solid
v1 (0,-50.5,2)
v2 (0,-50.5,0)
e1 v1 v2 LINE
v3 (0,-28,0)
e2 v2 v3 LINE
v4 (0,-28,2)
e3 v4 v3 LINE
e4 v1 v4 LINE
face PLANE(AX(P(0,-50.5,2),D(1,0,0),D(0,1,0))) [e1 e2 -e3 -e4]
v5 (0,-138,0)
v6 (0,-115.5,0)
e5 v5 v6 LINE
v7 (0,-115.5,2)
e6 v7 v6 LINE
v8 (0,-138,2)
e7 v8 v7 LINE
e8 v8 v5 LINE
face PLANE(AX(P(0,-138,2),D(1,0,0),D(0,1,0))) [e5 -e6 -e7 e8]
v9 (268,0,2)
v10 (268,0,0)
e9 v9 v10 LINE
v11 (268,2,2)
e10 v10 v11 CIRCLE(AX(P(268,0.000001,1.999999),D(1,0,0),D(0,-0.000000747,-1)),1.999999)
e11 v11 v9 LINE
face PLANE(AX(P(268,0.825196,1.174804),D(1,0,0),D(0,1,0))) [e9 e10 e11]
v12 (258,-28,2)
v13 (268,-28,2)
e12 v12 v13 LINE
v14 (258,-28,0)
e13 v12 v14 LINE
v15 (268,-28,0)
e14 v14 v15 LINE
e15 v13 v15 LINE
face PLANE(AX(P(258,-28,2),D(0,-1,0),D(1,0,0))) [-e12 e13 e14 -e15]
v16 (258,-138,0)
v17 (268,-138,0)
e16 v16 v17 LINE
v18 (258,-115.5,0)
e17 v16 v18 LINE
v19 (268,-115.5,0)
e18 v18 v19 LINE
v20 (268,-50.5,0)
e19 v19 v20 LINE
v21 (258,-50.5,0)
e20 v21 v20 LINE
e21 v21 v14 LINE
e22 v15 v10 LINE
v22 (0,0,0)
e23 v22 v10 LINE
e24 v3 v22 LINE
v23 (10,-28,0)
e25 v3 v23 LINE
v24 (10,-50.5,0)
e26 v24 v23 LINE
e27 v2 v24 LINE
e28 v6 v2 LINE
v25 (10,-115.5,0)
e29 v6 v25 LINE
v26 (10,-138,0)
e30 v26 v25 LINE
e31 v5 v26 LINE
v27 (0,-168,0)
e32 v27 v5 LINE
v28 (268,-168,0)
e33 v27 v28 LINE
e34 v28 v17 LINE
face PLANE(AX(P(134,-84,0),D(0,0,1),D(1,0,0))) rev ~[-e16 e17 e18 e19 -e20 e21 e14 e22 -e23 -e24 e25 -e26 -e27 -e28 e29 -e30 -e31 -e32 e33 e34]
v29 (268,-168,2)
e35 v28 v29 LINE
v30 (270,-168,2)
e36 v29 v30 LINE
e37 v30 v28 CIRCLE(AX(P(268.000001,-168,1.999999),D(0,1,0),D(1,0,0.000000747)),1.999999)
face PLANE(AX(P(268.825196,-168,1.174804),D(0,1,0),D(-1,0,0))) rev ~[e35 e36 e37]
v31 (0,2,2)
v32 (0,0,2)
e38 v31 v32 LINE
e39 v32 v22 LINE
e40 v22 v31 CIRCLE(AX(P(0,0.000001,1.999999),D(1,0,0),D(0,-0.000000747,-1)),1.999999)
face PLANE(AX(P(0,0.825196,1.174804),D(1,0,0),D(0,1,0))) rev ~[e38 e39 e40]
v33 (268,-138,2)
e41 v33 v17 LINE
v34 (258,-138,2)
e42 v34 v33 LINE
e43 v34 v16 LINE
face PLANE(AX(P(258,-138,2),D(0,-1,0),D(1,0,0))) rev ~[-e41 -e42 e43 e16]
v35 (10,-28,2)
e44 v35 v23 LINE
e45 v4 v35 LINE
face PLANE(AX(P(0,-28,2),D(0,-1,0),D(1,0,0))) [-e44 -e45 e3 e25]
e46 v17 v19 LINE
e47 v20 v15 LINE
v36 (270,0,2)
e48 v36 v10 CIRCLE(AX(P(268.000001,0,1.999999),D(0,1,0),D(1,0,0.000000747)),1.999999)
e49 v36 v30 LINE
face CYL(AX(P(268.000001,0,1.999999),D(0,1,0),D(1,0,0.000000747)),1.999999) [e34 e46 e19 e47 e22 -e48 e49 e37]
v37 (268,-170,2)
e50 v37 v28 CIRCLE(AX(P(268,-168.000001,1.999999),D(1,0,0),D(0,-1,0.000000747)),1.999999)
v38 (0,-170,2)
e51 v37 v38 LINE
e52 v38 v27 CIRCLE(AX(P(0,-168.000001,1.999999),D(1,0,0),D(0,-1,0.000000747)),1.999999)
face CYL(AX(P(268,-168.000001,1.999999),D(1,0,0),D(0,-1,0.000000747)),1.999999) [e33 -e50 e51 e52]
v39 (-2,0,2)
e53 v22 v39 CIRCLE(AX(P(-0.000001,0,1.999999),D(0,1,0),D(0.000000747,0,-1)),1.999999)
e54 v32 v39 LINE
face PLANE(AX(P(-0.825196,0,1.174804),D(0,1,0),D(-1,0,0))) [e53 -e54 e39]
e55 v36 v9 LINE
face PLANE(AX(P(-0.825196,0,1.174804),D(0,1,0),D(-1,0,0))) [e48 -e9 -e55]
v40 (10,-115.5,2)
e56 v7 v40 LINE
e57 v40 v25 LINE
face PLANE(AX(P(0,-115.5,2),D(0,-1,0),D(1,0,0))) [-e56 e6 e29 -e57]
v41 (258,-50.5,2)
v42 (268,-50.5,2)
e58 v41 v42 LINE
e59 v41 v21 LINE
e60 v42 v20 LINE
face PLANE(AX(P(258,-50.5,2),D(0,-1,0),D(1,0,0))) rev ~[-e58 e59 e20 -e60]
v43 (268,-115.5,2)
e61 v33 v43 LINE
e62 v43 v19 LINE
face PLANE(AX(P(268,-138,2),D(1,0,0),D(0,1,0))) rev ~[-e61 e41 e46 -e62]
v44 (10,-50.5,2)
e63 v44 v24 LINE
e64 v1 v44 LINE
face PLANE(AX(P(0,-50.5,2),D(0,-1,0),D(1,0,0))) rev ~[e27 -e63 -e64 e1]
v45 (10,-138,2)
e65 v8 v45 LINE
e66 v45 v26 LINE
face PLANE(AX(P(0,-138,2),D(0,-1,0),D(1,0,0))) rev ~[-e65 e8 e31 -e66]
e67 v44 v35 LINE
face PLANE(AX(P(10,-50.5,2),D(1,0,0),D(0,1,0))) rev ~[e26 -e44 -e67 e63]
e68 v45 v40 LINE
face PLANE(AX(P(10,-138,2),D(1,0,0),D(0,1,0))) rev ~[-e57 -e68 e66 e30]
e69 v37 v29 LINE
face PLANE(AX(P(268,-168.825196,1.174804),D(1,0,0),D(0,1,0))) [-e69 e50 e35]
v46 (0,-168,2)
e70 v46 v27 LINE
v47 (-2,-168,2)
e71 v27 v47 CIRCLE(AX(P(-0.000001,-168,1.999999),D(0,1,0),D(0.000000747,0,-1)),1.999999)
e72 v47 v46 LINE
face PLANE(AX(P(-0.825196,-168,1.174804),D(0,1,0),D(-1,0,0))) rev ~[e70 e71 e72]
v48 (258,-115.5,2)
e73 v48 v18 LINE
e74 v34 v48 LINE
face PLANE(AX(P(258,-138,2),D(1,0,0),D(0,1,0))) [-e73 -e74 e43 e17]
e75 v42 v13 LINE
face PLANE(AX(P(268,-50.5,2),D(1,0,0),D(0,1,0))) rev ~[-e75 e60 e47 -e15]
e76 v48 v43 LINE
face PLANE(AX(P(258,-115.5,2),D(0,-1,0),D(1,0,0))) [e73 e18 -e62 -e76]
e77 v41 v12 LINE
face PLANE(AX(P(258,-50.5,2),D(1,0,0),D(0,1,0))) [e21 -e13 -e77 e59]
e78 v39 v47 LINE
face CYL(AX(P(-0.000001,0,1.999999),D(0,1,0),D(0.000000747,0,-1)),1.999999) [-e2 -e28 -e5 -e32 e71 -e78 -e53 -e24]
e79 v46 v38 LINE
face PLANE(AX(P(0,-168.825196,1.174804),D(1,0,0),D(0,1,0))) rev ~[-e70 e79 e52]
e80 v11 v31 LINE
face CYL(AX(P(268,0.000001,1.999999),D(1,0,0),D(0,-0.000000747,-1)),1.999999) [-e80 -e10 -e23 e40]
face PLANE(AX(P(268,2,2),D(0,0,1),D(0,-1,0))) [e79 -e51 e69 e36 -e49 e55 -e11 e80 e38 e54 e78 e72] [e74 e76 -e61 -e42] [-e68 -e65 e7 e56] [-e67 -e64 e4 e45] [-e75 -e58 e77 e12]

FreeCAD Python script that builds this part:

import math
import FreeCAD as App
import Part
import Sketcher
from FreeCAD import Vector


def add_polygon(sketch, points):
    """Adds a closed chain of lines whose ends are joined by coincident constraints."""
    first, n = sketch.GeometryCount, len(points)
    for a, b in zip(points, points[1:] + points[:1]):
        sketch.addGeometry(Part.LineSegment(App.Vector(*a, 0), App.Vector(*b, 0)), False)
    for i in range(n):
        sketch.addConstraint(Sketcher.Constraint("Coincident", first + i, 2, first + (i + 1) % n, 1))

doc = App.newDocument("Part")
body = doc.addObject("PartDesign::Body", "Body")

# Sketch on XY plane
sketch1 = body.newObject("Sketcher::SketchObject", "Sketch")
sketch1.AttachmentSupport = (doc.getObject("XY_Plane"), [""])
sketch1.MapMode = "FlatFace"
add_polygon(sketch1, [(0, 0), (0, -168), (268, -168), (268, 0)])  # lines 0-3
sketch1.addConstraint([
    Sketcher.Constraint("Vertical", 0),
    Sketcher.Constraint("Horizontal", 1),
    Sketcher.Constraint("Vertical", 2),
    Sketcher.Constraint("Horizontal", 3),
    Sketcher.Constraint("Coincident", 3, 2, -1, 1),
    Sketcher.Constraint("DistanceX", 1, 1, 1, 2, 268.0),
    Sketcher.Constraint("DistanceY", 0, 2, 0, 1, 168.0),
])
pad1 = body.newObject("PartDesign::Pad", "Pad")
pad1.Profile = sketch1
pad1.Length = 2

# Sketch on YZ plane
sketch2 = body.newObject("Sketcher::SketchObject", "Sketch001")
sketch2.AttachmentSupport = (doc.getObject("YZ_Plane"), [""])
sketch2.MapMode = "FlatFace"
sketch2.AttachmentOffset = App.Placement(Vector(0, 0, 268), App.Rotation())
sketch2.addGeometry([
    Part.LineSegment(Vector(-168, 2, 0), Vector(-170, 2, 0)),
    Part.ArcOfCircle(Part.Circle(Vector(-168, 2, 0), Vector(0, 0, 1), 2), math.radians(180), math.radians(270)),
    Part.LineSegment(Vector(-168, 0, 0), Vector(-168, 2, 0)),
], False)
sketch2.addConstraint([
    Sketcher.Constraint("Coincident", 0, 2, 1, 1),
    Sketcher.Constraint("Coincident", 1, 2, 2, 1),
    Sketcher.Constraint("Coincident", 2, 2, 0, 1),
    Sketcher.Constraint("Horizontal", 0),
    Sketcher.Constraint("Vertical", 2),
    Sketcher.Constraint("Coincident", 2, 2, 1, 3),
    Sketcher.Constraint("PointOnObject", 1, 2, -1),
    Sketcher.Constraint("Radius", 1, 1.999999),
    Sketcher.Constraint("DistanceX", 1, 3, -1, 1, 168.000001),
])
pad2 = body.newObject("PartDesign::Pad", "Pad001")
pad2.Profile = sketch2
pad2.Length = 268
pad2.Reversed = True

# Sketch on XZ plane
sketch3 = body.newObject("Sketcher::SketchObject", "Sketch002")
sketch3.AttachmentSupport = (doc.getObject("XZ_Plane"), [""])
sketch3.MapMode = "FlatFace"
sketch3.addGeometry([
    Part.LineSegment(Vector(0, 2, 0), Vector(0, 0, 0)),  # 0
    Part.ArcOfCircle(Part.Circle(Vector(0, 2, 0), Vector(0, 0, 1), 2), math.radians(180), math.radians(270)),  # 1
    Part.LineSegment(Vector(-2, 2, 0), Vector(0, 2, 0)),  # 2
    Part.LineSegment(Vector(268, 2, 0), Vector(270, 2, 0)),  # 3
    Part.ArcOfCircle(Part.Circle(Vector(268, 2, 0), Vector(0, 0, 1), 2), math.radians(-90), math.radians(0)),  # 4
    Part.LineSegment(Vector(268, 0, 0), Vector(268, 2, 0)),  # 5
], False)
sketch3.addConstraint([
    Sketcher.Constraint("Coincident", 0, 2, 1, 2),
    Sketcher.Constraint("Coincident", 1, 1, 2, 1),
    Sketcher.Constraint("Coincident", 2, 2, 0, 1),
    Sketcher.Constraint("Coincident", 3, 2, 4, 2),
    Sketcher.Constraint("Coincident", 4, 1, 5, 1),
    Sketcher.Constraint("Coincident", 5, 2, 3, 1),
    Sketcher.Constraint("Vertical", 0),
    Sketcher.Constraint("Horizontal", 2),
    Sketcher.Constraint("Horizontal", 3),
    Sketcher.Constraint("Vertical", 5),
    Sketcher.Constraint("Coincident", 0, 2, -1, 1),
    Sketcher.Constraint("Coincident", 2, 2, 1, 3),
    Sketcher.Constraint("Coincident", 5, 2, 4, 3),
    Sketcher.Constraint("Equal", 1, 4),
    Sketcher.Constraint("PointOnObject", 4, 1, -1),
    Sketcher.Constraint("Radius", 1, 1.999999),
    Sketcher.Constraint("DistanceX", -1, 1, 4, 3, 268.000001),
])
pad3 = body.newObject("PartDesign::Pad", "Pad002")
pad3.Profile = sketch3
pad3.Length = 168

# Sketch on YZ plane
sketch4 = body.newObject("Sketcher::SketchObject", "Sketch003")
sketch4.AttachmentSupport = (doc.getObject("YZ_Plane"), [""])
sketch4.MapMode = "FlatFace"
sketch4.AttachmentOffset = App.Placement(Vector(0, 0, 268), App.Rotation())
sketch4.addGeometry([
    Part.LineSegment(Vector(0, 2, 0), Vector(0, 0, 0)),
    Part.ArcOfCircle(Part.Circle(Vector(0, 2, 0), Vector(0, 0, 1), 2), math.radians(-90), math.radians(0)),
    Part.LineSegment(Vector(2, 2, 0), Vector(0, 2, 0)),
], False)
sketch4.addConstraint([
    Sketcher.Constraint("Coincident", 0, 2, 1, 1),
    Sketcher.Constraint("Coincident", 1, 2, 2, 1),
    Sketcher.Constraint("Coincident", 2, 2, 0, 1),
    Sketcher.Constraint("Vertical", 0),
    Sketcher.Constraint("Horizontal", 2),
    Sketcher.Constraint("Coincident", 0, 2, -1, 1),
    Sketcher.Constraint("Coincident", 2, 2, 1, 3),
    Sketcher.Constraint("Radius", 1, 1.999999),
])
pad4 = body.newObject("PartDesign::Pad", "Pad003")
pad4.Profile = sketch4
pad4.Length = 268
pad4.Reversed = True

# Sketch on XY plane
sketch5 = body.newObject("Sketcher::SketchObject", "Sketch004")
sketch5.AttachmentSupport = (doc.getObject("XY_Plane"), [""])
sketch5.MapMode = "FlatFace"
sketch5.AttachmentOffset = App.Placement(Vector(0, 0, 2), App.Rotation())
add_polygon(sketch5, [(258, -28), (258, -50), (268, -50), (268, -28)])  # lines 0-3
add_polygon(sketch5, [(258, -116), (258, -138), (268, -138), (268, -116)])  # lines 4-7
add_polygon(sketch5, [(0, -116), (0, -138), (10, -138), (10, -116)])  # lines 8-11
add_polygon(sketch5, [(0, -28), (0, -50), (10, -50), (10, -28)])  # lines 12-15
sketch5.addConstraint([
    Sketcher.Constraint("Vertical", 0),
    Sketcher.Constraint("Horizontal", 1),
    Sketcher.Constraint("Vertical", 2),
    Sketcher.Constraint("Horizontal", 3),
    Sketcher.Constraint("Vertical", 4),
    Sketcher.Constraint("Horizontal", 5),
    Sketcher.Constraint("Vertical", 6),
    Sketcher.Constraint("Horizontal", 7),
    Sketcher.Constraint("Vertical", 8),
    Sketcher.Constraint("Horizontal", 9),
    Sketcher.Constraint("Vertical", 10),
    Sketcher.Constraint("Horizontal", 11),
    Sketcher.Constraint("Vertical", 12),
    Sketcher.Constraint("Horizontal", 13),
    Sketcher.Constraint("Vertical", 14),
    Sketcher.Constraint("Horizontal", 15),
    Sketcher.Constraint("PointOnObject", 8, 2, -2),
    Sketcher.Constraint("PointOnObject", 12, 2, -2),
    Sketcher.Constraint("Horizontal", 5, 2, 8, 2),
    Sketcher.Constraint("Horizontal", 7, 2, 10, 2),
    Sketcher.Constraint("Horizontal", 1, 2, 12, 2),
    Sketcher.Constraint("Horizontal", 3, 2, 14, 2),
    Sketcher.Constraint("Vertical", 3, 2, 4, 2),
    Sketcher.Constraint("Vertical", 2, 2, 5, 2),
    Sketcher.Constraint("Vertical", 10, 2, 13, 2),
    Sketcher.Constraint("Equal", 7, 9),
    Sketcher.Constraint("Equal", 2, 4),
    Sketcher.Constraint("DistanceX", 1, 1, 1, 2, 10.0),
    Sketcher.Constraint("DistanceY", 0, 2, 0, 1, 22.5),
    Sketcher.Constraint("DistanceX", -1, 1, 0, 2, 258.0),
    Sketcher.Constraint("DistanceY", 2, 2, -1, 1, 28.0),
    Sketcher.Constraint("DistanceY", 4, 2, -1, 1, 138.0),
])
pocket1 = body.newObject("PartDesign::Pocket", "Pocket")
pocket1.Profile = sketch5
pocket1.Length = 25

doc.recompute()
